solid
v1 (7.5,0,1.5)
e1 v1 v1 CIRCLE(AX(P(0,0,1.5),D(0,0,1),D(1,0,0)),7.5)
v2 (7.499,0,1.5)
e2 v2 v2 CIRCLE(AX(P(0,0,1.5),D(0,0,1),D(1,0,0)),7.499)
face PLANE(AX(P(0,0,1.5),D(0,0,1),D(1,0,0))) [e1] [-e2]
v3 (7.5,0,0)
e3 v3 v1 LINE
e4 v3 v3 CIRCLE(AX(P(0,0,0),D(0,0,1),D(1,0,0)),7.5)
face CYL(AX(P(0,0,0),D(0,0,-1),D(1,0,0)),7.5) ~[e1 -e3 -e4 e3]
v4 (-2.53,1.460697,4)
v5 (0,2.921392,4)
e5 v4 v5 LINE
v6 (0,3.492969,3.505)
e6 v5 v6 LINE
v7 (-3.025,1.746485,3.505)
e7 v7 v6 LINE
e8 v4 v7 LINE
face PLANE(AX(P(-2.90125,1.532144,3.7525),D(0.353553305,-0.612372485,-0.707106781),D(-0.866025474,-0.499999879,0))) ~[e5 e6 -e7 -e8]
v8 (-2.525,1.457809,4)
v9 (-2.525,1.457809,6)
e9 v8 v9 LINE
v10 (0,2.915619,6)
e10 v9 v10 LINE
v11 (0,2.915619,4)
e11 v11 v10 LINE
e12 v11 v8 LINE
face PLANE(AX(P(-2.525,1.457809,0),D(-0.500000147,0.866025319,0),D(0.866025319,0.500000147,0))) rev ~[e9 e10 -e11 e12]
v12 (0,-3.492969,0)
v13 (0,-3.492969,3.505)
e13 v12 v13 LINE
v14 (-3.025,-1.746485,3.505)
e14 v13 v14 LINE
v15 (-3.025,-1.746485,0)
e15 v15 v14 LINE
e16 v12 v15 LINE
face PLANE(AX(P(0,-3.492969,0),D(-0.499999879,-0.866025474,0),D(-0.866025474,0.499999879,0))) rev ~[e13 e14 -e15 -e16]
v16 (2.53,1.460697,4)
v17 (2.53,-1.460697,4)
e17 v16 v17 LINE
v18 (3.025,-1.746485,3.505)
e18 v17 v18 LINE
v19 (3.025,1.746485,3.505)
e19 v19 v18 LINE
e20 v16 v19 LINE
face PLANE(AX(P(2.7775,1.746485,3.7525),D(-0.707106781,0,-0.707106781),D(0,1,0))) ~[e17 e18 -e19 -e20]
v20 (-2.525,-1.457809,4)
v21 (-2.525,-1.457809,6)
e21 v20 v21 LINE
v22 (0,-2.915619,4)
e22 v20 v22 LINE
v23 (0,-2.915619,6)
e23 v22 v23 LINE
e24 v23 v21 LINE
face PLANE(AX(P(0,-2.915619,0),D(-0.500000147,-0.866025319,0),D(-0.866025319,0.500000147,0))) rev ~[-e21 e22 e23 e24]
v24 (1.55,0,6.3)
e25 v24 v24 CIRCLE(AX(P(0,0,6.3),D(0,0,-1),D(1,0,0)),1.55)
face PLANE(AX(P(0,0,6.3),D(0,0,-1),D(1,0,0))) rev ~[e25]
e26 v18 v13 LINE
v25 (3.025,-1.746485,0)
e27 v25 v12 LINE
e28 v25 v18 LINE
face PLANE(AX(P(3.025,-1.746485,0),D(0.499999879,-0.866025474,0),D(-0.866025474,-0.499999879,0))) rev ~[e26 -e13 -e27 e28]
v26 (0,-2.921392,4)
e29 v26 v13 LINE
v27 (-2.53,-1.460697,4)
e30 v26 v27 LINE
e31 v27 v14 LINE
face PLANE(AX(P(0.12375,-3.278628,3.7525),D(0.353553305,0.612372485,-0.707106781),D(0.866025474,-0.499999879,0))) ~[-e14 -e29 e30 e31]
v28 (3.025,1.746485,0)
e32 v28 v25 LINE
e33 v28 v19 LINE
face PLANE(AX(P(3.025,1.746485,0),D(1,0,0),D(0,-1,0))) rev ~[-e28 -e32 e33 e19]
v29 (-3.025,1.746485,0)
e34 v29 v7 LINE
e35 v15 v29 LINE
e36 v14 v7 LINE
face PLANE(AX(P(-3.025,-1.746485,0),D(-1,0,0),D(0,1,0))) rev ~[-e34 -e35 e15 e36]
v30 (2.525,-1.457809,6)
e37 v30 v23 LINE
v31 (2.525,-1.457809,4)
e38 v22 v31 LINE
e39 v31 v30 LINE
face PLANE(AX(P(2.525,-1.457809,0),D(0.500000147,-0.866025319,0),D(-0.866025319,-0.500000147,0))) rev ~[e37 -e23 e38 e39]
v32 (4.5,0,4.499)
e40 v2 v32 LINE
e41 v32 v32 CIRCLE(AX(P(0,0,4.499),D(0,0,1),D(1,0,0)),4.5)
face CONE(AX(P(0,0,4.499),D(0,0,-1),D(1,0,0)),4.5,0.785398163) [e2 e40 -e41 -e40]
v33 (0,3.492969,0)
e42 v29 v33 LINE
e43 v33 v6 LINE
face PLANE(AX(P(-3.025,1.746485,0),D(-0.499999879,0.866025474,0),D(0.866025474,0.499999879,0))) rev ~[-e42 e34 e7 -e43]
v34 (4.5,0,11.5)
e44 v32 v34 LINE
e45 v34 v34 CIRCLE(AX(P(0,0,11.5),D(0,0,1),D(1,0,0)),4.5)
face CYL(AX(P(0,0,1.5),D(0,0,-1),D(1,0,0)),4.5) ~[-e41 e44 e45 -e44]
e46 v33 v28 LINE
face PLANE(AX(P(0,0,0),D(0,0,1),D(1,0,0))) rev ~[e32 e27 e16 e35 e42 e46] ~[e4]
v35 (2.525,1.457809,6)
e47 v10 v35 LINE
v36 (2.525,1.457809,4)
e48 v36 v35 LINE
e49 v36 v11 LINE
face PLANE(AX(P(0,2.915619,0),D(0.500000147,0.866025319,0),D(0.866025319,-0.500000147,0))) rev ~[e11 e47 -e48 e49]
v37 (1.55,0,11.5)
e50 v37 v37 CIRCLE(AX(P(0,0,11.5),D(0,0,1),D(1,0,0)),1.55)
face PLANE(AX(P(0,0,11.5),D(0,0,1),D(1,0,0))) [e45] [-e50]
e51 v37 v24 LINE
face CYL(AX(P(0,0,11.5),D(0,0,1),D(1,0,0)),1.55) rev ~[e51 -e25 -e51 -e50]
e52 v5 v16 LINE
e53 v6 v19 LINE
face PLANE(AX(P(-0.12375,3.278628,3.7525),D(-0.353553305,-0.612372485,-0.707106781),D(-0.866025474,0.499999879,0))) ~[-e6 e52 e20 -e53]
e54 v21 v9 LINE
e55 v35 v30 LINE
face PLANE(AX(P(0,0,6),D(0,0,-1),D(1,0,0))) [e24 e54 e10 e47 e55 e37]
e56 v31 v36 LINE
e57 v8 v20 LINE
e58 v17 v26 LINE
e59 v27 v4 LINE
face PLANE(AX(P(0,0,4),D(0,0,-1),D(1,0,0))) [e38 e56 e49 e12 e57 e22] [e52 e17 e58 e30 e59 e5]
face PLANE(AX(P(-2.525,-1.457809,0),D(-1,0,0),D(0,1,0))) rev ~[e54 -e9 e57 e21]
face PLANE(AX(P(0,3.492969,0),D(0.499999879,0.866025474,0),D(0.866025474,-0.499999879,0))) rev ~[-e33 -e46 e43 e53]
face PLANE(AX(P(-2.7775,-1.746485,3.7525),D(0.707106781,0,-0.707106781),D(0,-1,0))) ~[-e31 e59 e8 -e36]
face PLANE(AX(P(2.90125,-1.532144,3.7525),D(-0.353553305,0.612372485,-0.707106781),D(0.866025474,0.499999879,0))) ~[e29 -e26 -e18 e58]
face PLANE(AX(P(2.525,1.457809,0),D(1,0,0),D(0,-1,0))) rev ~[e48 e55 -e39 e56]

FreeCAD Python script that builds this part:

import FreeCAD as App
import Part
import Sketcher
Q = App.Units.Quantity


def edges_at(feature, points):
    """Names of the edges that pass closest to the given points."""
    edges = feature.Shape.Edges
    near = lambda p: min(range(len(edges)), key=lambda i: edges[i].distToShape(Part.Vertex(*p))[0])
    return sorted({f"Edge{near(p) + 1}" for p in points})

doc = App.newDocument("Part")
params = doc.addObject("Spreadsheet::Sheet", "Params")
for row, (alias, value) in enumerate([
    ("sketch1_diameter", "15 mm"),
    ("pad1_length", "1.5 mm"),
    ("sketch2_diameter", "9 mm"),
    ("pad2_length", "10 mm"),
    ("pocket1_length", "6 mm"),
    ("sketch4_diameter", "3.1 mm"),
    ("pocket3_length", "4 mm"),
    ("chamfer_size", "2.999 mm"),
    ("sketch6_diameter", "3.1 mm"),
    ("pad3_length", "0.3 mm"),
    ("chamfer2_size", "0.495 mm"),
], start=1):
    params.set(f"A{row}", alias)
    params.set(f"B{row}", "=" + value)
    params.setAlias(f"B{row}", alias)

body = doc.addObject("PartDesign::Body", "Body")

sketch1 = body.newObject("Sketcher::SketchObject", "Sketch")
sketch1.AttachmentSupport = (doc.getObject("XY_Plane"), [""])
sketch1.MapMode = "FlatFace"
sketch1.addGeometry(Part.Circle(App.Vector(0, 0, 0), App.Vector(0, 0, 1), 8), False)
sketch1.addConstraint([
    Sketcher.Constraint("Coincident", 0, 3, -1, 1),
    Sketcher.Constraint("Diameter", 0, Q("15 mm")),
])
sketch1.setExpression("Constraints[1]", "Params.sketch1_diameter")
pad1 = body.newObject("PartDesign::Pad", "Pad")
pad1.Profile = sketch1
pad1.setExpression("Length", "Params.pad1_length")

sketch2 = body.newObject("Sketcher::SketchObject", "Sketch001")
sketch2.AttachmentSupport = (doc.getObject("XY_Plane"), [""])
sketch2.MapMode = "FlatFace"
sketch2.AttachmentOffset = App.Placement(App.Vector(0, 0, 1.5), App.Rotation())
sketch2.addGeometry(Part.Circle(App.Vector(0, 0, 0), App.Vector(0, 0, 1), 4.5), False)
sketch2.addConstraint([
    Sketcher.Constraint("Coincident", 0, 3, -1, 1),
    Sketcher.Constraint("Diameter", 0, Q("9 mm")),
])
sketch2.setExpression("Constraints[1]", "Params.sketch2_diameter")
pad2 = body.newObject("PartDesign::Pad", "Pad001")
pad2.Profile = sketch2
pad2.setExpression("Length", "Params.pad2_length")

sketch3 = body.newObject("Sketcher::SketchObject", "Sketch002")
sketch3.AttachmentSupport = (doc.getObject("XY_Plane"), [""])
sketch3.MapMode = "FlatFace"
sketch3.addGeometry([
    Part.LineSegment(App.Vector(2.5, -1.5, 0), App.Vector(0, -2.9, 0)),
    Part.LineSegment(App.Vector(0, -2.9, 0), App.Vector(-2.5, -1.5, 0)),
    Part.LineSegment(App.Vector(-2.5, -1.5, 0), App.Vector(-2.5, 1.5, 0)),
    Part.LineSegment(App.Vector(-2.5, 1.5, 0), App.Vector(0, 2.9, 0)),
    Part.LineSegment(App.Vector(0, 2.9, 0), App.Vector(2.5, 1.5, 0)),
    Part.LineSegment(App.Vector(2.5, 1.5, 0), App.Vector(2.5, -1.5, 0)),
], False)
sketch3.addConstraint([
    Sketcher.Constraint("Coincident", 0, 2, 1, 1),
    Sketcher.Constraint("Coincident", 1, 2, 2, 1),
    Sketcher.Constraint("Coincident", 2, 2, 3, 1),
    Sketcher.Constraint("Coincident", 3, 2, 4, 1),
    Sketcher.Constraint("Coincident", 4, 2, 5, 1),
    Sketcher.Constraint("Coincident", 5, 2, 0, 1),
    Sketcher.Constraint("Vertical", 2),
    Sketcher.Constraint("Vertical", 5),
    Sketcher.Constraint("Symmetric", 0, 2, 3, 2, -1, 1),
    Sketcher.Constraint("Symmetric", 1, 2, 4, 2, -1, 1),
    Sketcher.Constraint("PointOnObject", 0, 2, -2),
    Sketcher.Constraint("Parallel", 0, 3),
    Sketcher.Constraint("Horizontal", 2, 2, 4, 2),
    Sketcher.Constraint("Angle", 0, Q("-149.99999 deg")),
    Sketcher.Constraint("DistanceX", 2, 2, 4, 2, Q("5.05 mm")),
    Sketcher.Constraint("DistanceY", 2, 1, 2, 2, Q("2.915618 mm")),
])
pocket1 = body.newObject("PartDesign::Pocket", "Pocket")
pocket1.Profile = sketch3
pocket1.setExpression("Length", "Params.pocket1_length")
pocket1.Reversed = True

sketch4 = body.newObject("Sketcher::SketchObject", "Sketch003")
sketch4.AttachmentSupport = (doc.getObject("XY_Plane"), [""])
sketch4.MapMode = "FlatFace"
sketch4.AttachmentOffset = App.Placement(App.Vector(0, 0, 11.5), App.Rotation())
sketch4.addGeometry(Part.Circle(App.Vector(0, 0, 0), App.Vector(0, 0, 1), 1.6), False)
sketch4.addConstraint([
    Sketcher.Constraint("Coincident", 0, 3, -1, 1),
    Sketcher.Constraint("Diameter", 0, Q("3.1 mm")),
])
sketch4.setExpression("Constraints[1]", "Params.sketch4_diameter")
pocket2 = body.newObject("PartDesign::Pocket", "Pocket001")
pocket2.Profile = sketch4
pocket2.Type = "ThroughAll"

sketch5 = body.newObject("Sketcher::SketchObject", "Sketch004")
sketch5.AttachmentSupport = (doc.getObject("XY_Plane"), [""])
sketch5.MapMode = "FlatFace"
sketch5.addGeometry([
    Part.LineSegment(App.Vector(3, -1.7, 0), App.Vector(0, -3.5, 0)),
    Part.LineSegment(App.Vector(0, -3.5, 0), App.Vector(-3, -1.7, 0)),
    Part.LineSegment(App.Vector(-3, -1.7, 0), App.Vector(-3, 1.7, 0)),
    Part.LineSegment(App.Vector(-3, 1.7, 0), App.Vector(0, 3.5, 0)),
    Part.LineSegment(App.Vector(0, 3.5, 0), App.Vector(3, 1.7, 0)),
    Part.LineSegment(App.Vector(3, 1.7, 0), App.Vector(3, -1.7, 0)),
], False)
sketch5.addConstraint([
    Sketcher.Constraint("Coincident", 0, 2, 1, 1),
    Sketcher.Constraint("Coincident", 1, 2, 2, 1),
    Sketcher.Constraint("Coincident", 2, 2, 3, 1),
    Sketcher.Constraint("Coincident", 3, 2, 4, 1),
    Sketcher.Constraint("Coincident", 4, 2, 5, 1),
    Sketcher.Constraint("Coincident", 5, 2, 0, 1),
    Sketcher.Constraint("Vertical", 2),
    Sketcher.Constraint("Vertical", 5),
    Sketcher.Constraint("Symmetric", 0, 2, 3, 2, -1, 1),
    Sketcher.Constraint("Symmetric", 1, 2, 4, 2, -1, 1),
    Sketcher.Constraint("PointOnObject", 0, 2, -2),
    Sketcher.Constraint("Parallel", 0, 3),
    Sketcher.Constraint("Horizontal", 2, 2, 4, 2),
    Sketcher.Constraint("Angle", 0, Q("-150.000008 deg")),
    Sketcher.Constraint("DistanceX", 2, 2, 4, 2, Q("6.05 mm")),
    Sketcher.Constraint("DistanceY", 2, 1, 2, 2, Q("3.49297 mm")),
])
pocket3 = body.newObject("PartDesign::Pocket", "Pocket002")
pocket3.Profile = sketch5
pocket3.setExpression("Length", "Params.pocket3_length")
pocket3.Reversed = True
doc.recompute()

chamfer = body.newObject("PartDesign::Chamfer", "Chamfer")
chamfer.Base = (pocket3, edges_at(pocket3, [(-4.5, 0, 1.5)]))
chamfer.setExpression("Size", "Params.chamfer_size")

sketch6 = body.newObject("Sketcher::SketchObject", "Sketch005")
sketch6.AttachmentSupport = (doc.getObject("XY_Plane"), [""])
sketch6.MapMode = "FlatFace"
sketch6.AttachmentOffset = App.Placement(App.Vector(0, 0, 6), App.Rotation())
sketch6.addGeometry(Part.Circle(App.Vector(0, 0, 0), App.Vector(0, 0, 1), 1.6), False)
sketch6.addConstraint([
    Sketcher.Constraint("Coincident", 0, 3, -1, 1),
    Sketcher.Constraint("Diameter", 0, Q("3.1 mm")),
])
sketch6.setExpression("Constraints[1]", "Params.sketch6_diameter")
pad3 = body.newObject("PartDesign::Pad", "Pad002")
pad3.Profile = sketch6
pad3.setExpression("Length", "Params.pad3_length")
doc.recompute()

chamfer2 = body.newObject("PartDesign::Chamfer", "Chamfer001")
chamfer2.Base = (pad3, edges_at(pad3, [
    (3.025, 0, 4),
    (1.512, -2.62, 4),
    (1.512, 2.62, 4),
    (-1.512, -2.62, 4),
    (-3.025, 0, 4),
    (-1.512, 2.62, 4),
]))
chamfer2.setExpression("Size", "Params.chamfer2_size")

doc.recompute()
